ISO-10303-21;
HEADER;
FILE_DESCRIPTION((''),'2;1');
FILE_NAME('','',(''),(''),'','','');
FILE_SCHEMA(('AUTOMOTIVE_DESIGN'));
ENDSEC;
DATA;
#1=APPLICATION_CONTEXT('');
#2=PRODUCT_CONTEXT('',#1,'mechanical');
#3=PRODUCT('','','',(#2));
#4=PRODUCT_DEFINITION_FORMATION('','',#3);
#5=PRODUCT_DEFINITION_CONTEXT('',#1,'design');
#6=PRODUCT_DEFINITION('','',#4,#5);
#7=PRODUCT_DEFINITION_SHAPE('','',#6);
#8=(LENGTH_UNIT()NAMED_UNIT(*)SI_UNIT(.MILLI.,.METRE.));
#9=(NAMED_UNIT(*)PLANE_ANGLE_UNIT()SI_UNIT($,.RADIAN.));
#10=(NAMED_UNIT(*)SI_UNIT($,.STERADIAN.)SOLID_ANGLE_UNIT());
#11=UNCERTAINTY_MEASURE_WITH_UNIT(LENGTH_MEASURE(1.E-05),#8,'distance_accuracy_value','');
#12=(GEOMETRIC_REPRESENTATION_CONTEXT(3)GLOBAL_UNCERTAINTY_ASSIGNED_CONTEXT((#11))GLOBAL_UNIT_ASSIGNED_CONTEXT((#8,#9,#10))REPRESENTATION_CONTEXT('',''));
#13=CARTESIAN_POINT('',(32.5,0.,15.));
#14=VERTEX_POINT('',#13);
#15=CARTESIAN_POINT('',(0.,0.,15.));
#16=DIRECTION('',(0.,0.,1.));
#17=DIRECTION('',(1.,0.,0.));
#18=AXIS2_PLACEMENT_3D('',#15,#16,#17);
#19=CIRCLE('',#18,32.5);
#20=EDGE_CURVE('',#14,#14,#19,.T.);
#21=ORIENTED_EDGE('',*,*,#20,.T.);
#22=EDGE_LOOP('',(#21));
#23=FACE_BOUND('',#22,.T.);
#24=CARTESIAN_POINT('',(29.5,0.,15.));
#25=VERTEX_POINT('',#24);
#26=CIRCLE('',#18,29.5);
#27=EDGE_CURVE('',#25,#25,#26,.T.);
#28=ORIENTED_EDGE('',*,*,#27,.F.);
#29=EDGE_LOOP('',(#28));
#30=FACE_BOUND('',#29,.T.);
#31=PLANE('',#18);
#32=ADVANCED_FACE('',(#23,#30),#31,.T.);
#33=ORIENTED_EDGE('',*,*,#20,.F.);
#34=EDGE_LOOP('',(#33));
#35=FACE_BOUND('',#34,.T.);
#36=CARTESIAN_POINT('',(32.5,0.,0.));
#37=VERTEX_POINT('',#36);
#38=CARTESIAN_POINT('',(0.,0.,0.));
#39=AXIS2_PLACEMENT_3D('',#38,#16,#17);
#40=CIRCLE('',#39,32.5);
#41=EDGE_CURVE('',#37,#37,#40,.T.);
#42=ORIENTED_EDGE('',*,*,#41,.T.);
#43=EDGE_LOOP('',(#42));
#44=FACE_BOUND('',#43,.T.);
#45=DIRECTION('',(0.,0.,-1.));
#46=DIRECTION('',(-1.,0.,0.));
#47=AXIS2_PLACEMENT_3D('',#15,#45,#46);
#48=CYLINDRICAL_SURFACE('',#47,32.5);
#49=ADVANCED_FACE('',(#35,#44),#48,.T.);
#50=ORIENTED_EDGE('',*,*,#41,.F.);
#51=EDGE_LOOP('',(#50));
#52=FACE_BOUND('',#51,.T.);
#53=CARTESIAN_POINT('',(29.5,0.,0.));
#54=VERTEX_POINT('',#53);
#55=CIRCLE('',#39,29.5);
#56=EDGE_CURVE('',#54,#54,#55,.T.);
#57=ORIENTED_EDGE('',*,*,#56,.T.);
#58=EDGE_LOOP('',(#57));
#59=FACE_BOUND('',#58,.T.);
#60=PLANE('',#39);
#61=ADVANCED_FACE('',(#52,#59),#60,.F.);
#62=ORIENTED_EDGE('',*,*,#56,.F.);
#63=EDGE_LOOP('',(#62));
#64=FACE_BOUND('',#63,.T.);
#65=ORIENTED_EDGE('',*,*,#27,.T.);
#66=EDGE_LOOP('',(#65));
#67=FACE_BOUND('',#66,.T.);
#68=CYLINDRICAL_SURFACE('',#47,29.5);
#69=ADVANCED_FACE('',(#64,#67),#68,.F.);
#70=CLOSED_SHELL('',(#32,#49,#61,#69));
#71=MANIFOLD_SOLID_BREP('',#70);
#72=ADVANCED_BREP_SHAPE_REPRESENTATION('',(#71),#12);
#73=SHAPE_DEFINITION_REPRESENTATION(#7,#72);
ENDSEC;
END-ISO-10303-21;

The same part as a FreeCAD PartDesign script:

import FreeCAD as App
import Part
import Sketcher

doc = App.newDocument("Part")
params = doc.addObject("Spreadsheet::Sheet", "Params")
for row, (alias, value) in enumerate([
    ("sketch1_diameter", "65 mm"),
    ("sketch1_diameter2", "59 mm"),
    ("pad1_length", "15 mm"),
], start=1):
    params.set(f"A{row}", alias)
    params.set(f"B{row}", "=" + value)
    params.setAlias(f"B{row}", alias)

body = doc.addObject("PartDesign::Body", "Body")

# Sketch on XY plane
sketch1 = doc.addObject("Sketcher::SketchObject", "Sketch")
body.addObject(sketch1)
sketch1.AttachmentSupport = (doc.XY_Plane, [""])
sketch1.MapMode = "FlatFace"
sketch1.addGeometry([
    Part.Circle(App.Vector(0, 0, 0), App.Vector(0, 0, 1), 32),
    Part.Circle(App.Vector(0, 0, 0), App.Vector(0, 0, 1), 30),
], False)
sketch1.addConstraint([
    Sketcher.Constraint("Coincident", 0, 3, -1, 1),
    Sketcher.Constraint("Coincident", 1, 3, -1, 1),
    Sketcher.Constraint("Diameter", 0, 65.0),
    Sketcher.Constraint("Diameter", 1, 59.0),
])
sketch1.setExpression("Constraints[2]", "Params.sketch1_diameter")
sketch1.setExpression("Constraints[3]", "Params.sketch1_diameter2")
pad1 = doc.addObject("PartDesign::Pad", "Pad")
body.addObject(pad1)
pad1.Profile = sketch1
pad1.setExpression("Length", "Params.pad1_length")

doc.recompute()
